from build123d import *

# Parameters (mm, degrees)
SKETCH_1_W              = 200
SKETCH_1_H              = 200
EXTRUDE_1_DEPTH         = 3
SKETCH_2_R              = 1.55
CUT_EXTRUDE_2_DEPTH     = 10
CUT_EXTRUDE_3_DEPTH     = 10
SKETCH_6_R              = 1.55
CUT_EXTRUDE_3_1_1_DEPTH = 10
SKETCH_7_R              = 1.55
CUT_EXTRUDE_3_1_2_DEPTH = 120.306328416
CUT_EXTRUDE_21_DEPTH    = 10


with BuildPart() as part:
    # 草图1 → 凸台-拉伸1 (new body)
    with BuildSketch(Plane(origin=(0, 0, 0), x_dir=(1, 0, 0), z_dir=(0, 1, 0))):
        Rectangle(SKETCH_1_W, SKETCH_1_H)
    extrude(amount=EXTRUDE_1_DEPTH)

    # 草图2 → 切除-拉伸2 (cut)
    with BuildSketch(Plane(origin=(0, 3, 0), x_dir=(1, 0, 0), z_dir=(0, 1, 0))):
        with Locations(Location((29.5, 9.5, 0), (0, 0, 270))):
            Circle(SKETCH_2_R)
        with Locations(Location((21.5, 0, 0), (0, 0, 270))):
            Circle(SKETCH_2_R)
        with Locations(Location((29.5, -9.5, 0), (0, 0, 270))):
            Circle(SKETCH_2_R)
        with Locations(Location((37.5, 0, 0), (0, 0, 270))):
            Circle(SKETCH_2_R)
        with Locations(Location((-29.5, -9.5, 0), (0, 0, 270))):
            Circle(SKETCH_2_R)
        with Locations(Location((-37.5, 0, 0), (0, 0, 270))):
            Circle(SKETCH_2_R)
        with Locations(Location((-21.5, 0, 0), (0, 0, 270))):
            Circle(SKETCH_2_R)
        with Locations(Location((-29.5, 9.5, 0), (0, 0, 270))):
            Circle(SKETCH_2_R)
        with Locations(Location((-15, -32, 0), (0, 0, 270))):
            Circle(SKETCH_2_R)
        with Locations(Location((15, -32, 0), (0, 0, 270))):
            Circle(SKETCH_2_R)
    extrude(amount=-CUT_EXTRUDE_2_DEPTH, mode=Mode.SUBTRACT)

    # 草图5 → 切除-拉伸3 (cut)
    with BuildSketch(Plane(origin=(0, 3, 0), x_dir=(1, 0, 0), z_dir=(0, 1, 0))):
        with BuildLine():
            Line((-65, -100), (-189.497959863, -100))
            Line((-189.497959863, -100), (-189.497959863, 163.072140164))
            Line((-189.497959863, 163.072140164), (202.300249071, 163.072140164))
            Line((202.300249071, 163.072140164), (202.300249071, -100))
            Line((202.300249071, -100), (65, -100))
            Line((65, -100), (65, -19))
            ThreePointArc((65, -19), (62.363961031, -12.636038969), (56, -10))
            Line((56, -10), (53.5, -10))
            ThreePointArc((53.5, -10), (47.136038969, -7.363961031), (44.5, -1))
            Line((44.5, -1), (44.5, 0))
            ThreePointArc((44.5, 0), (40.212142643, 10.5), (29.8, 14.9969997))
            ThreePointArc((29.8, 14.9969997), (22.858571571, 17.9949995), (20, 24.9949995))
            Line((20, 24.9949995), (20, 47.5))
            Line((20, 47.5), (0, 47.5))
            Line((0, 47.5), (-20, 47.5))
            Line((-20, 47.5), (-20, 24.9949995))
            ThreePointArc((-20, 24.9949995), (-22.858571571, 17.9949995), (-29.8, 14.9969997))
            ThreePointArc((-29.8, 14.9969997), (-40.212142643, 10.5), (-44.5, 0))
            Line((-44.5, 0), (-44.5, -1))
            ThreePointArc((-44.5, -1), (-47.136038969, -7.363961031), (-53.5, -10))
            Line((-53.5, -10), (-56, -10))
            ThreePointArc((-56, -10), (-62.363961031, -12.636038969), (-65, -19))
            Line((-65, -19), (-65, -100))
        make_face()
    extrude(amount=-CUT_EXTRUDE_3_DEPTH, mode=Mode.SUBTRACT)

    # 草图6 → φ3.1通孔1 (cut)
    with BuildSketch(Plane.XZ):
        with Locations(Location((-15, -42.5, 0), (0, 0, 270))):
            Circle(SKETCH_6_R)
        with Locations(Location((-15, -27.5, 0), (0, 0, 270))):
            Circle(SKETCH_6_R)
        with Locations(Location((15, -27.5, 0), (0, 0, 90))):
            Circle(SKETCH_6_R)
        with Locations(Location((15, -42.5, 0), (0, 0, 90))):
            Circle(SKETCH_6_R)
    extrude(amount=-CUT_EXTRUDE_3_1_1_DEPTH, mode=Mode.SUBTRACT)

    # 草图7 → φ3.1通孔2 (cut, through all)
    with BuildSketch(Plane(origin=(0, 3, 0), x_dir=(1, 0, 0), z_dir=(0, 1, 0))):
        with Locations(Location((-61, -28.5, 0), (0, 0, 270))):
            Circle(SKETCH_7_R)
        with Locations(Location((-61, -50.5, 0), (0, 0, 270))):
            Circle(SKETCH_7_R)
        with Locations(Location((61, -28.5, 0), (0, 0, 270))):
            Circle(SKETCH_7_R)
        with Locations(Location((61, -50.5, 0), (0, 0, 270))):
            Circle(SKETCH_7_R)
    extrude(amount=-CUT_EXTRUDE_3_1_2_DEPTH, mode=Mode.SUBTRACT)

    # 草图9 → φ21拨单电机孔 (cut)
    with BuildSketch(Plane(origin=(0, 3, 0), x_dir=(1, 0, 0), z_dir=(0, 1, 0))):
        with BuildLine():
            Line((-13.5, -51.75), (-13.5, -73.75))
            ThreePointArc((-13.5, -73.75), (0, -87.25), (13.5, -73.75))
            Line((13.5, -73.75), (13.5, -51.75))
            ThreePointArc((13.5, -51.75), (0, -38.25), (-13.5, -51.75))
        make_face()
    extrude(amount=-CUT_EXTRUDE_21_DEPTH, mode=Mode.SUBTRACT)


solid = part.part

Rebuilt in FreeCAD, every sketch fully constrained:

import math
import FreeCAD as App
import Part
import Sketcher
Q = App.Units.Quantity

doc = App.newDocument("Part")
body = doc.addObject("PartDesign::Body", "Body")

# Sketch on XZ plane
sketch1 = body.newObject("Sketcher::SketchObject", "Sketch")
sketch1.AttachmentSupport = (doc.getObject("XZ_Plane"), [""])
sketch1.MapMode = "FlatFace"
sketch1.addGeometry([
    Part.LineSegment(App.Vector(-100, -100, 0), App.Vector(-100, 100, 0)),
    Part.LineSegment(App.Vector(-100, 100, 0), App.Vector(100, 100, 0)),
    Part.LineSegment(App.Vector(100, 100, 0), App.Vector(100, -100, 0)),
    Part.LineSegment(App.Vector(100, -100, 0), App.Vector(-100, -100, 0)),
], False)
sketch1.addConstraint([
    Sketcher.Constraint("Coincident", 0, 2, 1, 1),
    Sketcher.Constraint("Coincident", 1, 2, 2, 1),
    Sketcher.Constraint("Coincident", 2, 2, 3, 1),
    Sketcher.Constraint("Coincident", 3, 2, 0, 1),
    Sketcher.Constraint("Vertical", 0),
    Sketcher.Constraint("Horizontal", 1),
    Sketcher.Constraint("Vertical", 2),
    Sketcher.Constraint("Horizontal", 3),
    Sketcher.Constraint("Symmetric", 0, 2, 2, 2, -1, 1),
    Sketcher.Constraint("Equal", 3, 0),
    Sketcher.Constraint("DistanceX", 1, 1, 1, 2, Q("200 mm")),
])
pad1 = body.newObject("PartDesign::Pad", "Pad")
pad1.Profile = sketch1
pad1.Length = 3
pad1.Reversed = True

# Sketch on XZ plane
sketch2 = body.newObject("Sketcher::SketchObject", "Sketch001")
sketch2.AttachmentSupport = (doc.getObject("XZ_Plane"), [""])
sketch2.MapMode = "FlatFace"
sketch2.AttachmentOffset = App.Placement(App.Vector(0, 0, -3), App.Rotation())
sketch2.addGeometry([
    Part.Circle(App.Vector(29.5, -9.5, 0), App.Vector(0, 0, 1), 1.6),  # 0
    Part.Circle(App.Vector(21.5, 0, 0), App.Vector(0, 0, 1), 1.6),  # 1
    Part.Circle(App.Vector(29.5, 9.5, 0), App.Vector(0, 0, 1), 1.6),  # 2
    Part.Circle(App.Vector(37.5, 0, 0), App.Vector(0, 0, 1), 1.6),  # 3
    Part.Circle(App.Vector(-29.5, 9.5, 0), App.Vector(0, 0, 1), 1.6),  # 4
    Part.Circle(App.Vector(-37.5, 0, 0), App.Vector(0, 0, 1), 1.6),  # 5
    Part.Circle(App.Vector(-21.5, 0, 0), App.Vector(0, 0, 1), 1.6),  # 6
    Part.Circle(App.Vector(-29.5, -9.5, 0), App.Vector(0, 0, 1), 1.6),  # 7
    Part.Circle(App.Vector(-15, 32, 0), App.Vector(0, 0, 1), 1.6),  # 8
    Part.Circle(App.Vector(15, 32, 0), App.Vector(0, 0, 1), 1.6),  # 9
], False)
sketch2.addConstraint([
    Sketcher.Constraint("Equal", 0, 1),
    Sketcher.Constraint("Equal", 1, 2),
    Sketcher.Constraint("Equal", 2, 3),
    Sketcher.Constraint("Equal", 3, 4),
    Sketcher.Constraint("Equal", 4, 5),
    Sketcher.Constraint("Equal", 5, 6),
    Sketcher.Constraint("Equal", 6, 7),
    Sketcher.Constraint("Equal", 7, 8),
    Sketcher.Constraint("Equal", 8, 9),
    Sketcher.Constraint("Symmetric", 0, 3, 4, 3, -1, 1),
    Sketcher.Constraint("Symmetric", 3, 3, 5, 3, -1, 1),
    Sketcher.Constraint("Symmetric", 1, 3, 6, 3, -1, 1),
    Sketcher.Constraint("Symmetric", 2, 3, 7, 3, -1, 1),
    Sketcher.Constraint("Symmetric", 2, 3, 4, 3, -2),
    Sketcher.Constraint("Symmetric", 8, 3, 9, 3, -2),
    Sketcher.Constraint("PointOnObject", 1, 3, -1),
    Sketcher.Constraint("PointOnObject", 3, 3, -1),
    Sketcher.Constraint("Diameter", 0, Q("3.1 mm")),
    Sketcher.Constraint("DistanceX", 8, 3, -1, 1, Q("15 mm")),
    Sketcher.Constraint("DistanceY", -1, 1, 8, 3, Q("32 mm")),
    Sketcher.Constraint("DistanceX", 1, 3, 0, 3, Q("8 mm")),
    Sketcher.Constraint("DistanceY", 0, 3, 2, 3, Q("19 mm")),
    Sketcher.Constraint("DistanceX", 0, 3, 3, 3, Q("8 mm")),
    Sketcher.Constraint("DistanceX", 4, 3, 1, 3, Q("51 mm")),
])
pocket1 = body.newObject("PartDesign::Pocket", "Pocket")
pocket1.Profile = sketch2
pocket1.Length = 10
pocket1.Reversed = True

# Sketch on XZ plane
sketch3 = body.newObject("Sketcher::SketchObject", "Sketch002")
sketch3.AttachmentSupport = (doc.getObject("XZ_Plane"), [""])
sketch3.MapMode = "FlatFace"
sketch3.AttachmentOffset = App.Placement(App.Vector(0, 0, -3), App.Rotation())
sketch3.addGeometry([
    Part.LineSegment(App.Vector(-189.5, 100, 0), App.Vector(-65, 100, 0)),  # 0
    Part.LineSegment(App.Vector(-65, 100, 0), App.Vector(-65, 19, 0)),  # 1
    Part.ArcOfCircle(Part.Circle(App.Vector(-56, 19, 0), App.Vector(0, 0, 1), 9), math.radians(180), math.radians(270)),  # 2
    Part.LineSegment(App.Vector(-56, 10, 0), App.Vector(-53.5, 10, 0)),  # 3
    Part.ArcOfCircle(Part.Circle(App.Vector(-53.5, 1, 0), App.Vector(0, 0, 1), 9), math.radians(0), math.radians(90)),  # 4
    Part.LineSegment(App.Vector(-44.5, 1, 0), App.Vector(-44.5, 0, 0)),  # 5
    Part.ArcOfCircle(Part.Circle(App.Vector(-29.5, 0, 0), App.Vector(0, 0, 1), 15), math.radians(180), math.radians(269)),  # 6
    Part.ArcOfCircle(Part.Circle(App.Vector(-30, -25, 0), App.Vector(0, 0, 1), 10), math.radians(0), math.radians(89)),  # 7
    Part.LineSegment(App.Vector(-20, -25, 0), App.Vector(-20, -47.5, 0)),  # 8
    Part.LineSegment(App.Vector(-20, -47.5, 0), App.Vector(20, -47.5, 0)),  # 9
    Part.LineSegment(App.Vector(20, -47.5, 0), App.Vector(20, -25, 0)),  # 10
    Part.ArcOfCircle(Part.Circle(App.Vector(30, -25, 0), App.Vector(0, 0, 1), 10), math.radians(91), math.radians(180)),  # 11
    Part.ArcOfCircle(Part.Circle(App.Vector(29.5, 0, 0), App.Vector(0, 0, 1), 15), math.radians(-89), math.radians(0)),  # 12
    Part.LineSegment(App.Vector(44.5, 0, 0), App.Vector(44.5, 1, 0)),  # 13
    Part.ArcOfCircle(Part.Circle(App.Vector(53.5, 1, 0), App.Vector(0, 0, 1), 9), math.radians(90), math.radians(180)),  # 14
    Part.LineSegment(App.Vector(53.5, 10, 0), App.Vector(56, 10, 0)),  # 15
    Part.ArcOfCircle(Part.Circle(App.Vector(56, 19, 0), App.Vector(0, 0, 1), 9), math.radians(-90), math.radians(0)),  # 16
    Part.LineSegment(App.Vector(65, 19, 0), App.Vector(65, 100, 0)),  # 17
    Part.LineSegment(App.Vector(65, 100, 0), App.Vector(202.3, 100, 0)),  # 18
    Part.LineSegment(App.Vector(202.3, 100, 0), App.Vector(202.3, -163.1, 0)),  # 19
    Part.LineSegment(App.Vector(202.3, -163.1, 0), App.Vector(-189.5, -163.1, 0)),  # 20
    Part.LineSegment(App.Vector(-189.5, -163.1, 0), App.Vector(-189.5, 100, 0)),  # 21
], False)
sketch3.addConstraint([
    Sketcher.Constraint("Coincident", 0, 2, 1, 1),
    Sketcher.Constraint("Tangent", 1, 2, 2, 1),
    Sketcher.Constraint("Tangent", 2, 2, 3, 1),
    Sketcher.Constraint("Tangent", 3, 2, 4, 2),
    Sketcher.Constraint("Tangent", 4, 1, 5, 1),
    Sketcher.Constraint("Tangent", 5, 2, 6, 1),
    Sketcher.Constraint("Tangent", 6, 2, 7, 2),
    Sketcher.Constraint("Tangent", 7, 1, 8, 1),
    Sketcher.Constraint("Coincident", 8, 2, 9, 1),
    Sketcher.Constraint("Coincident", 9, 2, 10, 1),
    Sketcher.Constraint("Tangent", 10, 2, 11, 2),
    Sketcher.Constraint("Tangent", 11, 1, 12, 1),
    Sketcher.Constraint("Tangent", 12, 2, 13, 1),
    Sketcher.Constraint("Tangent", 13, 2, 14, 2),
    Sketcher.Constraint("Tangent", 14, 1, 15, 1),
    Sketcher.Constraint("Tangent", 15, 2, 16, 1),
    Sketcher.Constraint("Tangent", 16, 2, 17, 1),
    Sketcher.Constraint("Coincident", 17, 2, 18, 1),
    Sketcher.Constraint("Coincident", 18, 2, 19, 1),
    Sketcher.Constraint("Coincident", 19, 2, 20, 1),
    Sketcher.Constraint("Coincident", 20, 2, 21, 1),
    Sketcher.Constraint("Coincident", 21, 2, 0, 1),
    Sketcher.Constraint("Horizontal", 0),
    Sketcher.Constraint("Vertical", 1),
    Sketcher.Constraint("Horizontal", 3),
    Sketcher.Constraint("Vertical", 5),
    Sketcher.Constraint("Vertical", 8),
    Sketcher.Constraint("Horizontal", 9),
    Sketcher.Constraint("Vertical", 10),
    Sketcher.Constraint("Vertical", 13),
    Sketcher.Constraint("Horizontal", 15),
    Sketcher.Constraint("Vertical", 17),
    Sketcher.Constraint("Horizontal", 18),
    Sketcher.Constraint("Vertical", 19),
    Sketcher.Constraint("Horizontal", 20),
    Sketcher.Constraint("Vertical", 21),
    Sketcher.Constraint("Equal", 2, 4),
    Sketcher.Constraint("Equal", 7, 11),
    Sketcher.Constraint("Equal", 6, 12),
    Sketcher.Constraint("Equal", 4, 14),
    Sketcher.Constraint("Equal", 14, 16),
    Sketcher.Constraint("Symmetric", 6, 3, 12, 3, -1, 1),
    Sketcher.Constraint("Symmetric", 7, 3, 11, 3, -2),
    Sketcher.Constraint("Symmetric", 2, 3, 16, 3, -2),
    Sketcher.Constraint("Horizontal", 0, 2, 17, 2),
    Sketcher.Constraint("Radius", 2, Q("9 mm")),
    Sketcher.Constraint("Radius", 6, Q("15 mm")),
    Sketcher.Constraint("Radius", 7, Q("10 mm")),
    Sketcher.Constraint("DistanceX", 9, 1, 9, 2, Q("40 mm")),
    Sketcher.Constraint("DistanceY", 1, 2, 1, 1, Q("81 mm")),
    Sketcher.Constraint("DistanceY", 5, 2, 5, 1, Q("1 mm")),
    Sketcher.Constraint("DistanceX", 3, 1, 3, 2, Q("2.5 mm")),
    Sketcher.Constraint("DistanceX", 2, 3, -1, 1, Q("56 mm")),
    Sketcher.Constraint("DistanceY", 8, 2, -1, 1, Q("47.5 mm")),
    Sketcher.Constraint("DistanceX", 0, 1, 0, 2, Q("124.49796 mm")),
    Sketcher.Constraint("DistanceX", 18, 1, 18, 2, Q("137.300249 mm")),
    Sketcher.Constraint("DistanceY", 19, 2, 19, 1, Q("263.07214 mm")),
])
pocket2 = body.newObject("PartDesign::Pocket", "Pocket001")
pocket2.Profile = sketch3
pocket2.Length = 10
pocket2.Reversed = True

# Sketch on XZ plane
sketch4 = body.newObject("Sketcher::SketchObject", "Sketch003")
sketch4.AttachmentSupport = (doc.getObject("XZ_Plane"), [""])
sketch4.MapMode = "FlatFace"
sketch4.addGeometry([
    Part.Circle(App.Vector(-15, -42.5, 0), App.Vector(0, 0, 1), 1.6),
    Part.Circle(App.Vector(-15, -27.5, 0), App.Vector(0, 0, 1), 1.6),
    Part.Circle(App.Vector(15, -27.5, 0), App.Vector(0, 0, 1), 1.6),
    Part.Circle(App.Vector(15, -42.5, 0), App.Vector(0, 0, 1), 1.6),
], False)
sketch4.addConstraint([
    Sketcher.Constraint("Equal", 0, 1),
    Sketcher.Constraint("Equal", 1, 2),
    Sketcher.Constraint("Equal", 2, 3),
    Sketcher.Constraint("Symmetric", 1, 3, 2, 3, -2),
    Sketcher.Constraint("Symmetric", 0, 3, 3, 3, -2),
    Sketcher.Constraint("Vertical", 0, 3, 1, 3),
    Sketcher.Constraint("Diameter", 0, Q("3.1 mm")),
    Sketcher.Constraint("DistanceX", 0, 3, -1, 1, Q("15 mm")),
    Sketcher.Constraint("DistanceY", 0, 3, 1, 3, Q("15 mm")),
    Sketcher.Constraint("DistanceY", 0, 3, -1, 1, Q("42.5 mm")),
])
pocket3 = body.newObject("PartDesign::Pocket", "Pocket002")
pocket3.Profile = sketch4
pocket3.Length = 10

# Sketch on XZ plane
sketch5 = body.newObject("Sketcher::SketchObject", "Sketch004")
sketch5.AttachmentSupport = (doc.getObject("XZ_Plane"), [""])
sketch5.MapMode = "FlatFace"
sketch5.AttachmentOffset = App.Placement(App.Vector(0, 0, -3), App.Rotation())
sketch5.addGeometry([
    Part.Circle(App.Vector(-61, 28.5, 0), App.Vector(0, 0, 1), 1.6),
    Part.Circle(App.Vector(-61, 50.5, 0), App.Vector(0, 0, 1), 1.6),
    Part.Circle(App.Vector(61, 28.5, 0), App.Vector(0, 0, 1), 1.6),
    Part.Circle(App.Vector(61, 50.5, 0), App.Vector(0, 0, 1), 1.6),
], False)
sketch5.addConstraint([
    Sketcher.Constraint("Equal", 0, 1),
    Sketcher.Constraint("Equal", 1, 2),
    Sketcher.Constraint("Equal", 2, 3),
    Sketcher.Constraint("Symmetric", 0, 3, 2, 3, -2),
    Sketcher.Constraint("Symmetric", 1, 3, 3, 3, -2),
    Sketcher.Constraint("Vertical", 0, 3, 1, 3),
    Sketcher.Constraint("Diameter", 0, Q("3.1 mm")),
    Sketcher.Constraint("DistanceX", 0, 3, -1, 1, Q("61 mm")),
    Sketcher.Constraint("DistanceY", 0, 3, 1, 3, Q("22 mm")),
    Sketcher.Constraint("DistanceY", -1, 1, 0, 3, Q("28.5 mm")),
])
pocket4 = body.newObject("PartDesign::Pocket", "Pocket003")
pocket4.Profile = sketch5
pocket4.Type = "ThroughAll"
pocket4.Reversed = True

# Sketch on XZ plane
sketch6 = body.newObject("Sketcher::SketchObject", "Sketch005")
sketch6.AttachmentSupport = (doc.getObject("XZ_Plane"), [""])
sketch6.MapMode = "FlatFace"
sketch6.AttachmentOffset = App.Placement(App.Vector(0, 0, -3), App.Rotation())
sketch6.addGeometry([
    Part.LineSegment(App.Vector(-14, 52, 0), App.Vector(-14, 74, 0)),
    Part.ArcOfCircle(Part.Circle(App.Vector(0, 74, 0), App.Vector(0, 0, 1), 14), math.radians(0), math.radians(180)),
    Part.LineSegment(App.Vector(14, 74, 0), App.Vector(14, 52, 0)),
    Part.ArcOfCircle(Part.Circle(App.Vector(0, 52, 0), App.Vector(0, 0, 1), 14), math.radians(180), math.radians(360)),
], False)
sketch6.addConstraint([
    Sketcher.Constraint("Tangent", 0, 2, 1, 2),
    Sketcher.Constraint("Tangent", 1, 1, 2, 1),
    Sketcher.Constraint("Tangent", 2, 2, 3, 2),
    Sketcher.Constraint("Tangent", 3, 1, 0, 1),
    Sketcher.Constraint("Vertical", 0),
    Sketcher.Constraint("Vertical", 2),
    Sketcher.Constraint("PointOnObject", 1, 3, -2),
    Sketcher.Constraint("Radius", 1, Q("13.5 mm")),
    Sketcher.Constraint("DistanceY", 0, 1, 0, 2, Q("22 mm")),
    Sketcher.Constraint("DistanceY", -1, 1, 1, 3, Q("73.75 mm")),
])
pocket5 = body.newObject("PartDesign::Pocket", "Pocket004")
pocket5.Profile = sketch6
pocket5.Length = 10
pocket5.Reversed = True

doc.recompute()
